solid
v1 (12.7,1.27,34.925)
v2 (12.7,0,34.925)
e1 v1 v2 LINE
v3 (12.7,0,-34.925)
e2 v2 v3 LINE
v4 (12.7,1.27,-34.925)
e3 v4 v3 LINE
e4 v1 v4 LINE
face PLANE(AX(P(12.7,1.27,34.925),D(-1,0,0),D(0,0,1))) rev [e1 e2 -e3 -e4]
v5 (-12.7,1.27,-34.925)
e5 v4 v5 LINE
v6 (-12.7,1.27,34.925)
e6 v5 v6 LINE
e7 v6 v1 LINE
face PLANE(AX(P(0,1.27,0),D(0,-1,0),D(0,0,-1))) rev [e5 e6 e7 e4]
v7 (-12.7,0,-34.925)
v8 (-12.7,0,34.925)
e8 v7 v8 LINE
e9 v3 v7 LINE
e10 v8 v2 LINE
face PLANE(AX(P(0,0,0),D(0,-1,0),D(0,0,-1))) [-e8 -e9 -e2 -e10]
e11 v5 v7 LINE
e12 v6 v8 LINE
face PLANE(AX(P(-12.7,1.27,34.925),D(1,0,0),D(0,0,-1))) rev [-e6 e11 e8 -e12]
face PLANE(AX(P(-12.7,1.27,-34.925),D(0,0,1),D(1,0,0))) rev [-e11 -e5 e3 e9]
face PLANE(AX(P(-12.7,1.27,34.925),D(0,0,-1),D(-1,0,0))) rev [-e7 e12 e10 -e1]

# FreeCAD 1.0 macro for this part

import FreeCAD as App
import Part
import Sketcher
from FreeCAD import Vector
Q = App.Units.Quantity


def add_polygon(sketch, points):
    """Adds a closed chain of lines whose ends are joined by coincident constraints."""
    first, n = sketch.GeometryCount, len(points)
    for a, b in zip(points, points[1:] + points[:1]):
        sketch.addGeometry(Part.LineSegment(App.Vector(*a, 0), App.Vector(*b, 0)), False)
    for i in range(n):
        sketch.addConstraint(Sketcher.Constraint("Coincident", first + i, 2, first + (i + 1) % n, 1))

doc = App.newDocument("Part")
body = doc.addObject("PartDesign::Body", "Body")

sketch1 = doc.addObject("Sketcher::SketchObject", "Sketch")
body.addObject(sketch1)
sketch1.AttachmentSupport = (doc.XZ_Plane, [""])
sketch1.MapMode = "FlatFace"
add_polygon(sketch1, [(-12.7, -34.925), (-12.7, 34.925), (12.7, 34.925), (12.7, -34.925)])
sketch1.addConstraint(Sketcher.Constraint("Vertical", 0))
sketch1.addConstraint(Sketcher.Constraint("Horizontal", 1))
sketch1.addConstraint(Sketcher.Constraint("Vertical", 2))
sketch1.addConstraint(Sketcher.Constraint("Horizontal", 3))
sketch1.addConstraint(Sketcher.Constraint("Symmetric", 0, 2, 2, 2, -1, 1))
sketch1.addConstraint(Sketcher.Constraint("DistanceX", 1, 1, 1, 2, Q("1 in")))
sketch1.addConstraint(Sketcher.Constraint("DistanceY", 0, 1, 0, 2, Q("2.75 in")))
pad1 = doc.addObject("PartDesign::Pad", "Pad")
body.addObject(pad1)
pad1.Profile = sketch1
pad1.Length = Q("0.05 in")
pad1.Reversed = True

doc.recompute()
